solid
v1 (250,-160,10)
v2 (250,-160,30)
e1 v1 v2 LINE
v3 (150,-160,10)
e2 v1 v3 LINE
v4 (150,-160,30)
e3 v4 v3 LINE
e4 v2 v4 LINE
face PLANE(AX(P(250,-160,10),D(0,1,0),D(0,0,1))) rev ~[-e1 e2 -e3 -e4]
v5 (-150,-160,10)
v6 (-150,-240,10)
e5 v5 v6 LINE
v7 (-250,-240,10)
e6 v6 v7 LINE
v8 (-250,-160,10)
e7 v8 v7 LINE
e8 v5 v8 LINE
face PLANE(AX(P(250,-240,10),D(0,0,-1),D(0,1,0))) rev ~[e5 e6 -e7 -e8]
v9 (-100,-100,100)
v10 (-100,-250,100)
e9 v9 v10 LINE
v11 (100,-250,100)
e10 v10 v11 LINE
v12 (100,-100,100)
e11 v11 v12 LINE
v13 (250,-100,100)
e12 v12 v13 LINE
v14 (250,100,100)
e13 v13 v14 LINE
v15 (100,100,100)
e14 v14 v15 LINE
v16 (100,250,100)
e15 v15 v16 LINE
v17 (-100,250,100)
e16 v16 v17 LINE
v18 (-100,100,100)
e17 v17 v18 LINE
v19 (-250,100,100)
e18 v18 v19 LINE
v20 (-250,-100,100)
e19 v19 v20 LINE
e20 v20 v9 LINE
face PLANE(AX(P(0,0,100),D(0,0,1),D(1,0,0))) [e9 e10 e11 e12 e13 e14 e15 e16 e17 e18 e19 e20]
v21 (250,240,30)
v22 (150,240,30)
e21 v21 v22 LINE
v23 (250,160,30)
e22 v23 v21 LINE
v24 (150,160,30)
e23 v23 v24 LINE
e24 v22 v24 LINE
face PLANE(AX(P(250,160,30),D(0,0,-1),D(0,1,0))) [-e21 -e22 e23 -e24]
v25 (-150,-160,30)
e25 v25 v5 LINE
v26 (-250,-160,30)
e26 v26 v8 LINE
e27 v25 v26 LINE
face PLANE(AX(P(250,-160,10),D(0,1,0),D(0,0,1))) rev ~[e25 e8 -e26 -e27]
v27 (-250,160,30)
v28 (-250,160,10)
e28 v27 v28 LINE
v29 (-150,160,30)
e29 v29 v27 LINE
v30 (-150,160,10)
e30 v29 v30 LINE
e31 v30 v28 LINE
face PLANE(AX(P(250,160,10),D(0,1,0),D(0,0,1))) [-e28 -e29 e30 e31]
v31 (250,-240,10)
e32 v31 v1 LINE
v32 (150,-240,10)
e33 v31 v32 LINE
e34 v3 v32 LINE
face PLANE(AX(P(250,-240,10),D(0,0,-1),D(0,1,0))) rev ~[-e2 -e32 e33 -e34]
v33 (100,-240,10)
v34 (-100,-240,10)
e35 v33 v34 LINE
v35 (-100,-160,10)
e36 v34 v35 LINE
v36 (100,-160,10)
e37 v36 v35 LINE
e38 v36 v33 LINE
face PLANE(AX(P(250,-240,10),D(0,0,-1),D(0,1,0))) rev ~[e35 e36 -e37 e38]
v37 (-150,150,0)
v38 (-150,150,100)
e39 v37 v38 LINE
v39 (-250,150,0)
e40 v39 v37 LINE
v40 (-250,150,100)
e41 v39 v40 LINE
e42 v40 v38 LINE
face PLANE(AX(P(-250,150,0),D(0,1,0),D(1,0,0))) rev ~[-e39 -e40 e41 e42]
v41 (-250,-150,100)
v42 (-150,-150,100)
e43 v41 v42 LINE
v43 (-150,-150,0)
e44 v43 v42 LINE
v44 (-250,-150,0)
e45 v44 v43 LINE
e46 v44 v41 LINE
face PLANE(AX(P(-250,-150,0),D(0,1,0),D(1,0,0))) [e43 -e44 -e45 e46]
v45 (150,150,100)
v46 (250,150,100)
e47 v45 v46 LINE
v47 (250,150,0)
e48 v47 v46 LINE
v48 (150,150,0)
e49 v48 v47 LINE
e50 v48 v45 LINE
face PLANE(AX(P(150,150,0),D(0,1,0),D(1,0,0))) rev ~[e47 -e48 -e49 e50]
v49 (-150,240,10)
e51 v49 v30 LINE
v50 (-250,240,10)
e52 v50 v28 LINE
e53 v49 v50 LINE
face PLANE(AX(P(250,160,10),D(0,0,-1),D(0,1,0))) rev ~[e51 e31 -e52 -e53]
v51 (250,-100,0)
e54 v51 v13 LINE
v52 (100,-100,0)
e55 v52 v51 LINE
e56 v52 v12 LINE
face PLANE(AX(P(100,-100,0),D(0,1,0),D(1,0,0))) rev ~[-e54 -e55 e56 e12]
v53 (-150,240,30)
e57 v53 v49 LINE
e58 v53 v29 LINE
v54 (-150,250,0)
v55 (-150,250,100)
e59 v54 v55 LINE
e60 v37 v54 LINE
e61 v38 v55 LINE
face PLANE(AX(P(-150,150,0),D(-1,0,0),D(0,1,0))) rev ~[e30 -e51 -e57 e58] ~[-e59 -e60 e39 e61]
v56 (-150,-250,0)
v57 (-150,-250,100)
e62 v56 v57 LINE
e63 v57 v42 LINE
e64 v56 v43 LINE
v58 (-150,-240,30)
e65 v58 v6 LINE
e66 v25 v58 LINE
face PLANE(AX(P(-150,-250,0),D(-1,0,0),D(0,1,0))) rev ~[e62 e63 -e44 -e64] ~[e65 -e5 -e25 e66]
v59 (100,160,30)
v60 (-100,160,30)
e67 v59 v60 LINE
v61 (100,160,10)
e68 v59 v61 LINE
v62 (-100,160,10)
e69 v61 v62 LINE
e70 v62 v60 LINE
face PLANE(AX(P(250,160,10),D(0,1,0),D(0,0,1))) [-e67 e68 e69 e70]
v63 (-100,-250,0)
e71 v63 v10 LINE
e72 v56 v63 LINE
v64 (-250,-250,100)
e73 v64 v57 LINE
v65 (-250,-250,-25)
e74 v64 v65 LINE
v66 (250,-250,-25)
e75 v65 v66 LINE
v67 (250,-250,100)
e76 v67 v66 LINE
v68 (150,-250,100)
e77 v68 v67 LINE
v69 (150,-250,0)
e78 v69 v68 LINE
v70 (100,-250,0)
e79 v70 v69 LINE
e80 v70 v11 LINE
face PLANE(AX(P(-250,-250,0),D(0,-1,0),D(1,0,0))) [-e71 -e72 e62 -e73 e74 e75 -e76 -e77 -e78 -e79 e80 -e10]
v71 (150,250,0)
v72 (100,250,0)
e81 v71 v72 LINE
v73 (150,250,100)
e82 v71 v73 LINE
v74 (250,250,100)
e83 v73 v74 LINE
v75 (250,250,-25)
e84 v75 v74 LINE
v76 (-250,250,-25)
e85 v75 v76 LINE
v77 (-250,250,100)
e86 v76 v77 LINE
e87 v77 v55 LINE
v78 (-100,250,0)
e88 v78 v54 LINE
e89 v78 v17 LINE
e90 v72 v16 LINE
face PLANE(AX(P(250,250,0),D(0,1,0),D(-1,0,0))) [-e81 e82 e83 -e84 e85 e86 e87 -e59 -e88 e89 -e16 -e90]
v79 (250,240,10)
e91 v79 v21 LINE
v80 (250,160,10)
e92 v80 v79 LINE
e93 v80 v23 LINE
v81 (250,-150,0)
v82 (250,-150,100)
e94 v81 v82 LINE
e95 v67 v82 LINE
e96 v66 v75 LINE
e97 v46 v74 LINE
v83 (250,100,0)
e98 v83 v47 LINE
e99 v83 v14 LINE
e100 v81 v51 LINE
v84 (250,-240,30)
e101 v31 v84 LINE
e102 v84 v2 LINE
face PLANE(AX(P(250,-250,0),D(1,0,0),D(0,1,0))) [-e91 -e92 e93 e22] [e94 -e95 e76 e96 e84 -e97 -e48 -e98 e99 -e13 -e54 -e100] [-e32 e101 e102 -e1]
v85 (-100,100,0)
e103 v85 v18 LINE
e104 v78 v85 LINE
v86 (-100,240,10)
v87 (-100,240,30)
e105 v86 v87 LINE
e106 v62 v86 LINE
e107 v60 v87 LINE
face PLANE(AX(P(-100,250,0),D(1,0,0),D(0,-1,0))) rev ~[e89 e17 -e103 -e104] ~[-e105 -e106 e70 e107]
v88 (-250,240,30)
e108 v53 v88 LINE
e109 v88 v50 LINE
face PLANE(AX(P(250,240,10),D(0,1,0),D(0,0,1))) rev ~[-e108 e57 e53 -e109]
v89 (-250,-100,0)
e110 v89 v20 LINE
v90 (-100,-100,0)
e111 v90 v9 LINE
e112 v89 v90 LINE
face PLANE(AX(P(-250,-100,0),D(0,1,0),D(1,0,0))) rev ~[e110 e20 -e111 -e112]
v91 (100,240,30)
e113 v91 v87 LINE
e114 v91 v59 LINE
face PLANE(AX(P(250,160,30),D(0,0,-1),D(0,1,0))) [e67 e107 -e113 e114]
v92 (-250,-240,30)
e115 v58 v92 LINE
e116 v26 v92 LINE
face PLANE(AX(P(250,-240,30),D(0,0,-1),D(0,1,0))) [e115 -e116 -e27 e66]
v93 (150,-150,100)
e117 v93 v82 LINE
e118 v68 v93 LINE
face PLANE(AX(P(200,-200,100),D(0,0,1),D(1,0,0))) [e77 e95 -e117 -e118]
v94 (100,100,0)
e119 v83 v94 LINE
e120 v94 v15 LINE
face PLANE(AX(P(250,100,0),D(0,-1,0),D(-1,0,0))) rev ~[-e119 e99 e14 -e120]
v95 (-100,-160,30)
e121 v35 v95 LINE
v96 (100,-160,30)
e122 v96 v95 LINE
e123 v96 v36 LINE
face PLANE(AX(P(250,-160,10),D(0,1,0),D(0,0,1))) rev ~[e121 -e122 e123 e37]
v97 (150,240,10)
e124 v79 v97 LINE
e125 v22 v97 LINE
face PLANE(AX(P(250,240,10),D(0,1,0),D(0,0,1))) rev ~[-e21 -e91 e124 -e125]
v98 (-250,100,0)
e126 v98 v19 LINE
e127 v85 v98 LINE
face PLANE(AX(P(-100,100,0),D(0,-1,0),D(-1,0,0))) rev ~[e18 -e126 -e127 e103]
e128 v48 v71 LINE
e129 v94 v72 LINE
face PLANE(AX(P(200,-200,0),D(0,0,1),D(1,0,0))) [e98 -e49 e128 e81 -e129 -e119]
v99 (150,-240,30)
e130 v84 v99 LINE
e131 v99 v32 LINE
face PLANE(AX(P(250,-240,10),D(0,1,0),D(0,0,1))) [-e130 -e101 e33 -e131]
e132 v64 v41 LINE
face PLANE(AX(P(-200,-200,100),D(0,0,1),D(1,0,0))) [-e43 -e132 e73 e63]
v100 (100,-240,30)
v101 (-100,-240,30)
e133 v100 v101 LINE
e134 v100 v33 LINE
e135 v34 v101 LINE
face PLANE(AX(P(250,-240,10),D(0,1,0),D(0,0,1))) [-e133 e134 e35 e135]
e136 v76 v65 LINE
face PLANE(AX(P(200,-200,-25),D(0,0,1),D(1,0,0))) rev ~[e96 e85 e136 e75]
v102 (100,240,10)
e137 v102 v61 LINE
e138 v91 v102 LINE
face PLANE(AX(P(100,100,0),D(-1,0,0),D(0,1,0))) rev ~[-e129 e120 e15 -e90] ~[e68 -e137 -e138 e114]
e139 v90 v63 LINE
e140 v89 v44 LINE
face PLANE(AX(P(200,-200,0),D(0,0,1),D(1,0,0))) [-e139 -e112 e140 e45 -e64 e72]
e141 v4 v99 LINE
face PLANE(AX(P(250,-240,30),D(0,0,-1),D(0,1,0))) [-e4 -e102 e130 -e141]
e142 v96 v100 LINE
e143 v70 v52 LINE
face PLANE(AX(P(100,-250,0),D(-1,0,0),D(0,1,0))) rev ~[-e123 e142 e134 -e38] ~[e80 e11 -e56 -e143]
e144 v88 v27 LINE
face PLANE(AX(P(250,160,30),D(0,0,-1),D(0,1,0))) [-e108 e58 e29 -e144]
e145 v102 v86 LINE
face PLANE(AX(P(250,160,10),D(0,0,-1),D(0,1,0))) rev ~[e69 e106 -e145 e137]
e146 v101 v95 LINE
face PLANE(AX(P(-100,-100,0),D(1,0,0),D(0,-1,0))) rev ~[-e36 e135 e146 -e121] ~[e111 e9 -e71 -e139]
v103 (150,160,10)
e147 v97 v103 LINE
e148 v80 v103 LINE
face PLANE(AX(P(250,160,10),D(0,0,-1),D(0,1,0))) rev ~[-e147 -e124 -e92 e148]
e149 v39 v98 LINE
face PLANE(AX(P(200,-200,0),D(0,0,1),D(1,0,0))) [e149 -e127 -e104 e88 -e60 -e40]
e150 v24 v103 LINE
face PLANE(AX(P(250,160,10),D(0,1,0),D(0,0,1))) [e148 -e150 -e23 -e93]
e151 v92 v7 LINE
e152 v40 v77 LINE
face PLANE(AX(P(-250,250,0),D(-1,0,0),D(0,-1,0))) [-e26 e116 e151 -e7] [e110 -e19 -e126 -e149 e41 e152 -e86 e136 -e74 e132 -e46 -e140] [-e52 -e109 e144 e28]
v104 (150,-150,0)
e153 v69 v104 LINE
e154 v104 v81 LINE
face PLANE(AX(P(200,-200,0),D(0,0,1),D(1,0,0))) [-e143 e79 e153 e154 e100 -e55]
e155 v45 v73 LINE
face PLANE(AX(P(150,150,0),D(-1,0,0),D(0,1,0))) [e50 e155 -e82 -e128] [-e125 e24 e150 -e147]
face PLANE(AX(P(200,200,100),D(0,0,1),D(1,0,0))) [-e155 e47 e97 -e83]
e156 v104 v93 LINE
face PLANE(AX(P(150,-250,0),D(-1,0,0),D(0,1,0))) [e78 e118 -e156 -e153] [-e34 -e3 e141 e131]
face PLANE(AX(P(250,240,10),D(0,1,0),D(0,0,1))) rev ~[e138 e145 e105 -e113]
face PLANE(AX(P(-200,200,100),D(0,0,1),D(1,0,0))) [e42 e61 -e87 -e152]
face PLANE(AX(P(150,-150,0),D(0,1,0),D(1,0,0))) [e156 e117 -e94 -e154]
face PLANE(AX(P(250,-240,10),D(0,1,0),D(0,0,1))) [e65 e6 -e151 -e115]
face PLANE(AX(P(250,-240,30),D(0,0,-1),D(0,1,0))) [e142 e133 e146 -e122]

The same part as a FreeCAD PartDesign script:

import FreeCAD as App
import Part
import Sketcher
Q = App.Units.Quantity


def add_polygon(sketch, points):
    """Adds a closed chain of lines whose ends are joined by coincident constraints."""
    first, n = sketch.GeometryCount, len(points)
    for a, b in zip(points, points[1:] + points[:1]):
        sketch.addGeometry(Part.LineSegment(App.Vector(*a, 0), App.Vector(*b, 0)), False)
    for i in range(n):
        sketch.addConstraint(Sketcher.Constraint("Coincident", first + i, 2, first + (i + 1) % n, 1))

doc = App.newDocument("Part")
params = doc.addObject("Spreadsheet::Sheet", "Params")
for row, (alias, value) in enumerate([
    ("sketch1_width", "200 mm"),
    ("sketch1_width2", "150 mm"),
    ("sketch1_width3", "100 mm"),
    ("pad1_length", "100 mm"),
    ("sketch2_width", "500 mm"),
    ("pad2_length", "25 mm"),
    ("sketch3_width", "80 mm"),
    ("sketch3_height", "20 mm"),
    ("pocket1_length", "5000 mm"),
], start=1):
    params.set(f"A{row}", alias)
    params.set(f"B{row}", "=" + value)
    params.setAlias(f"B{row}", alias)

body = doc.addObject("PartDesign::Body", "Body")
body.AllowCompound = True

sketch1 = body.newObject("Sketcher::SketchObject", "Sketch")
sketch1.AttachmentSupport = (doc.getObject("XY_Plane"), [""])
sketch1.MapMode = "FlatFace"
add_polygon(sketch1, [(100, 100), (100, 250), (-100, 250), (-100, 100), (-250, 100), (-250, -100), (-100, -100), (-100, -250), (100, -250), (100, -100), (250, -100), (250, 100)])
add_polygon(sketch1, [(-250, -150), (-250, -250), (-150, -250), (-150, -150)])
add_polygon(sketch1, [(150, -150), (150, -250), (250, -250), (250, -150)])
add_polygon(sketch1, [(150, 250), (150, 150), (250, 150), (250, 250)])
add_polygon(sketch1, [(-250, 250), (-250, 150), (-150, 150), (-150, 250)])
sketch1.addConstraint(Sketcher.Constraint("Vertical", 0))
sketch1.addConstraint(Sketcher.Constraint("Horizontal", 1))
sketch1.addConstraint(Sketcher.Constraint("Vertical", 2))
sketch1.addConstraint(Sketcher.Constraint("Horizontal", 3))
sketch1.addConstraint(Sketcher.Constraint("Vertical", 4))
sketch1.addConstraint(Sketcher.Constraint("Horizontal", 5))
sketch1.addConstraint(Sketcher.Constraint("Vertical", 6))
sketch1.addConstraint(Sketcher.Constraint("Horizontal", 7))
sketch1.addConstraint(Sketcher.Constraint("Vertical", 8))
sketch1.addConstraint(Sketcher.Constraint("Horizontal", 9))
sketch1.addConstraint(Sketcher.Constraint("Vertical", 10))
sketch1.addConstraint(Sketcher.Constraint("Horizontal", 11))
sketch1.addConstraint(Sketcher.Constraint("Vertical", 12))
sketch1.addConstraint(Sketcher.Constraint("Horizontal", 13))
sketch1.addConstraint(Sketcher.Constraint("Vertical", 14))
sketch1.addConstraint(Sketcher.Constraint("Horizontal", 15))
sketch1.addConstraint(Sketcher.Constraint("Vertical", 16))
sketch1.addConstraint(Sketcher.Constraint("Horizontal", 17))
sketch1.addConstraint(Sketcher.Constraint("Vertical", 18))
sketch1.addConstraint(Sketcher.Constraint("Horizontal", 19))
sketch1.addConstraint(Sketcher.Constraint("Vertical", 20))
sketch1.addConstraint(Sketcher.Constraint("Horizontal", 21))
sketch1.addConstraint(Sketcher.Constraint("Vertical", 22))
sketch1.addConstraint(Sketcher.Constraint("Horizontal", 23))
sketch1.addConstraint(Sketcher.Constraint("Vertical", 24))
sketch1.addConstraint(Sketcher.Constraint("Horizontal", 25))
sketch1.addConstraint(Sketcher.Constraint("Vertical", 26))
sketch1.addConstraint(Sketcher.Constraint("Horizontal", 27))
sketch1.addConstraint(Sketcher.Constraint("Symmetric", 0, 2, 6, 2, -1, 1))
sketch1.addConstraint(Sketcher.Constraint("Symmetric", 2, 2, 8, 2, -1, 1))
sketch1.addConstraint(Sketcher.Constraint("Symmetric", 4, 2, 10, 2, -1, 1))
sketch1.addConstraint(Sketcher.Constraint("Symmetric", 14, 2, 20, 2, -1, 1))
sketch1.addConstraint(Sketcher.Constraint("Symmetric", 12, 2, 22, 2, -1, 1))
sketch1.addConstraint(Sketcher.Constraint("Symmetric", 18, 2, 24, 2, -1, 1))
sketch1.addConstraint(Sketcher.Constraint("Symmetric", 16, 2, 26, 2, -1, 1))
sketch1.addConstraint(Sketcher.Constraint("Symmetric", 5, 2, 8, 2, -2))
sketch1.addConstraint(Sketcher.Constraint("Symmetric", 13, 2, 16, 2, -2))
sketch1.addConstraint(Sketcher.Constraint("Symmetric", 15, 2, 18, 2, -2))
sketch1.addConstraint(Sketcher.Constraint("Horizontal", 7, 2, 12, 2))
sketch1.addConstraint(Sketcher.Constraint("Vertical", 4, 2, 12, 2))
sketch1.addConstraint(Sketcher.Constraint("Equal", 11, 0))
sketch1.addConstraint(Sketcher.Constraint("Equal", 7, 4))
sketch1.addConstraint(Sketcher.Constraint("Equal", 27, 12))
sketch1.addConstraint(Sketcher.Constraint("DistanceX", 1, 2, 1, 1, Q("200 mm")))
sketch1.addConstraint(Sketcher.Constraint("DistanceX", 3, 2, 3, 1, Q("150 mm")))
sketch1.addConstraint(Sketcher.Constraint("DistanceX", 13, 1, 13, 2, Q("100 mm")))
sketch1.setExpression("Constraints[71]", "Params.sketch1_width")
sketch1.setExpression("Constraints[72]", "Params.sketch1_width2")
sketch1.setExpression("Constraints[73]", "Params.sketch1_width3")
pad1 = body.newObject("PartDesign::Pad", "Pad")
pad1.Profile = sketch1
pad1.setExpression("Length", "Params.pad1_length")

sketch2 = body.newObject("Sketcher::SketchObject", "Sketch001")
sketch2.AttachmentSupport = (doc.getObject("XY_Plane"), [""])
sketch2.MapMode = "FlatFace"
add_polygon(sketch2, [(250, -250), (250, 250), (-250, 250), (-250, -250)])
sketch2.addConstraint(Sketcher.Constraint("Vertical", 0))
sketch2.addConstraint(Sketcher.Constraint("Horizontal", 1))
sketch2.addConstraint(Sketcher.Constraint("Vertical", 2))
sketch2.addConstraint(Sketcher.Constraint("Horizontal", 3))
sketch2.addConstraint(Sketcher.Constraint("Symmetric", 0, 2, 2, 2, -1, 1))
sketch2.addConstraint(Sketcher.Constraint("Equal", 3, 0))
sketch2.addConstraint(Sketcher.Constraint("DistanceX", 1, 2, 1, 1, Q("500 mm")))
sketch2.setExpression("Constraints[10]", "Params.sketch2_width")
pad2 = body.newObject("PartDesign::Pad", "Pad001")
pad2.Profile = sketch2
pad2.setExpression("Length", "Params.pad2_length")
pad2.Reversed = True

sketch3 = body.newObject("Sketcher::SketchObject", "Sketch002")
sketch3.AttachmentSupport = (doc.getObject("YZ_Plane"), [""])
sketch3.MapMode = "FlatFace"
sketch3.AttachmentOffset = App.Placement(App.Vector(0, 0, 250), App.Rotation())
add_polygon(sketch3, [(-240, 30), (-240, 10), (-160, 10), (-160, 30)])
add_polygon(sketch3, [(160, 30), (160, 10), (240, 10), (240, 30)])
sketch3.addConstraint(Sketcher.Constraint("Vertical", 0))
sketch3.addConstraint(Sketcher.Constraint("Horizontal", 1))
sketch3.addConstraint(Sketcher.Constraint("Vertical", 2))
sketch3.addConstraint(Sketcher.Constraint("Horizontal", 3))
sketch3.addConstraint(Sketcher.Constraint("Vertical", 4))
sketch3.addConstraint(Sketcher.Constraint("Horizontal", 5))
sketch3.addConstraint(Sketcher.Constraint("Vertical", 6))
sketch3.addConstraint(Sketcher.Constraint("Horizontal", 7))
sketch3.addConstraint(Sketcher.Constraint("Symmetric", 1, 2, 4, 2, -2))
sketch3.addConstraint(Sketcher.Constraint("Symmetric", 3, 2, 6, 2, -2))
sketch3.addConstraint(Sketcher.Constraint("DistanceX", 1, 1, 1, 2, Q("80 mm")))
sketch3.addConstraint(Sketcher.Constraint("DistanceY", 0, 2, 0, 1, Q("20 mm")))
sketch3.addConstraint(Sketcher.Constraint("DistanceX", 0, 2, -1, 1, Q("240 mm")))
sketch3.addConstraint(Sketcher.Constraint("DistanceY", -1, 1, 0, 2, Q("10 mm")))
sketch3.setExpression("Constraints[18]", "Params.sketch3_width")
sketch3.setExpression("Constraints[19]", "Params.sketch3_height")
pocket1 = body.newObject("PartDesign::Pocket", "Pocket")
pocket1.Profile = sketch3
pocket1.setExpression("Length", "Params.pocket1_length")

doc.recompute()
